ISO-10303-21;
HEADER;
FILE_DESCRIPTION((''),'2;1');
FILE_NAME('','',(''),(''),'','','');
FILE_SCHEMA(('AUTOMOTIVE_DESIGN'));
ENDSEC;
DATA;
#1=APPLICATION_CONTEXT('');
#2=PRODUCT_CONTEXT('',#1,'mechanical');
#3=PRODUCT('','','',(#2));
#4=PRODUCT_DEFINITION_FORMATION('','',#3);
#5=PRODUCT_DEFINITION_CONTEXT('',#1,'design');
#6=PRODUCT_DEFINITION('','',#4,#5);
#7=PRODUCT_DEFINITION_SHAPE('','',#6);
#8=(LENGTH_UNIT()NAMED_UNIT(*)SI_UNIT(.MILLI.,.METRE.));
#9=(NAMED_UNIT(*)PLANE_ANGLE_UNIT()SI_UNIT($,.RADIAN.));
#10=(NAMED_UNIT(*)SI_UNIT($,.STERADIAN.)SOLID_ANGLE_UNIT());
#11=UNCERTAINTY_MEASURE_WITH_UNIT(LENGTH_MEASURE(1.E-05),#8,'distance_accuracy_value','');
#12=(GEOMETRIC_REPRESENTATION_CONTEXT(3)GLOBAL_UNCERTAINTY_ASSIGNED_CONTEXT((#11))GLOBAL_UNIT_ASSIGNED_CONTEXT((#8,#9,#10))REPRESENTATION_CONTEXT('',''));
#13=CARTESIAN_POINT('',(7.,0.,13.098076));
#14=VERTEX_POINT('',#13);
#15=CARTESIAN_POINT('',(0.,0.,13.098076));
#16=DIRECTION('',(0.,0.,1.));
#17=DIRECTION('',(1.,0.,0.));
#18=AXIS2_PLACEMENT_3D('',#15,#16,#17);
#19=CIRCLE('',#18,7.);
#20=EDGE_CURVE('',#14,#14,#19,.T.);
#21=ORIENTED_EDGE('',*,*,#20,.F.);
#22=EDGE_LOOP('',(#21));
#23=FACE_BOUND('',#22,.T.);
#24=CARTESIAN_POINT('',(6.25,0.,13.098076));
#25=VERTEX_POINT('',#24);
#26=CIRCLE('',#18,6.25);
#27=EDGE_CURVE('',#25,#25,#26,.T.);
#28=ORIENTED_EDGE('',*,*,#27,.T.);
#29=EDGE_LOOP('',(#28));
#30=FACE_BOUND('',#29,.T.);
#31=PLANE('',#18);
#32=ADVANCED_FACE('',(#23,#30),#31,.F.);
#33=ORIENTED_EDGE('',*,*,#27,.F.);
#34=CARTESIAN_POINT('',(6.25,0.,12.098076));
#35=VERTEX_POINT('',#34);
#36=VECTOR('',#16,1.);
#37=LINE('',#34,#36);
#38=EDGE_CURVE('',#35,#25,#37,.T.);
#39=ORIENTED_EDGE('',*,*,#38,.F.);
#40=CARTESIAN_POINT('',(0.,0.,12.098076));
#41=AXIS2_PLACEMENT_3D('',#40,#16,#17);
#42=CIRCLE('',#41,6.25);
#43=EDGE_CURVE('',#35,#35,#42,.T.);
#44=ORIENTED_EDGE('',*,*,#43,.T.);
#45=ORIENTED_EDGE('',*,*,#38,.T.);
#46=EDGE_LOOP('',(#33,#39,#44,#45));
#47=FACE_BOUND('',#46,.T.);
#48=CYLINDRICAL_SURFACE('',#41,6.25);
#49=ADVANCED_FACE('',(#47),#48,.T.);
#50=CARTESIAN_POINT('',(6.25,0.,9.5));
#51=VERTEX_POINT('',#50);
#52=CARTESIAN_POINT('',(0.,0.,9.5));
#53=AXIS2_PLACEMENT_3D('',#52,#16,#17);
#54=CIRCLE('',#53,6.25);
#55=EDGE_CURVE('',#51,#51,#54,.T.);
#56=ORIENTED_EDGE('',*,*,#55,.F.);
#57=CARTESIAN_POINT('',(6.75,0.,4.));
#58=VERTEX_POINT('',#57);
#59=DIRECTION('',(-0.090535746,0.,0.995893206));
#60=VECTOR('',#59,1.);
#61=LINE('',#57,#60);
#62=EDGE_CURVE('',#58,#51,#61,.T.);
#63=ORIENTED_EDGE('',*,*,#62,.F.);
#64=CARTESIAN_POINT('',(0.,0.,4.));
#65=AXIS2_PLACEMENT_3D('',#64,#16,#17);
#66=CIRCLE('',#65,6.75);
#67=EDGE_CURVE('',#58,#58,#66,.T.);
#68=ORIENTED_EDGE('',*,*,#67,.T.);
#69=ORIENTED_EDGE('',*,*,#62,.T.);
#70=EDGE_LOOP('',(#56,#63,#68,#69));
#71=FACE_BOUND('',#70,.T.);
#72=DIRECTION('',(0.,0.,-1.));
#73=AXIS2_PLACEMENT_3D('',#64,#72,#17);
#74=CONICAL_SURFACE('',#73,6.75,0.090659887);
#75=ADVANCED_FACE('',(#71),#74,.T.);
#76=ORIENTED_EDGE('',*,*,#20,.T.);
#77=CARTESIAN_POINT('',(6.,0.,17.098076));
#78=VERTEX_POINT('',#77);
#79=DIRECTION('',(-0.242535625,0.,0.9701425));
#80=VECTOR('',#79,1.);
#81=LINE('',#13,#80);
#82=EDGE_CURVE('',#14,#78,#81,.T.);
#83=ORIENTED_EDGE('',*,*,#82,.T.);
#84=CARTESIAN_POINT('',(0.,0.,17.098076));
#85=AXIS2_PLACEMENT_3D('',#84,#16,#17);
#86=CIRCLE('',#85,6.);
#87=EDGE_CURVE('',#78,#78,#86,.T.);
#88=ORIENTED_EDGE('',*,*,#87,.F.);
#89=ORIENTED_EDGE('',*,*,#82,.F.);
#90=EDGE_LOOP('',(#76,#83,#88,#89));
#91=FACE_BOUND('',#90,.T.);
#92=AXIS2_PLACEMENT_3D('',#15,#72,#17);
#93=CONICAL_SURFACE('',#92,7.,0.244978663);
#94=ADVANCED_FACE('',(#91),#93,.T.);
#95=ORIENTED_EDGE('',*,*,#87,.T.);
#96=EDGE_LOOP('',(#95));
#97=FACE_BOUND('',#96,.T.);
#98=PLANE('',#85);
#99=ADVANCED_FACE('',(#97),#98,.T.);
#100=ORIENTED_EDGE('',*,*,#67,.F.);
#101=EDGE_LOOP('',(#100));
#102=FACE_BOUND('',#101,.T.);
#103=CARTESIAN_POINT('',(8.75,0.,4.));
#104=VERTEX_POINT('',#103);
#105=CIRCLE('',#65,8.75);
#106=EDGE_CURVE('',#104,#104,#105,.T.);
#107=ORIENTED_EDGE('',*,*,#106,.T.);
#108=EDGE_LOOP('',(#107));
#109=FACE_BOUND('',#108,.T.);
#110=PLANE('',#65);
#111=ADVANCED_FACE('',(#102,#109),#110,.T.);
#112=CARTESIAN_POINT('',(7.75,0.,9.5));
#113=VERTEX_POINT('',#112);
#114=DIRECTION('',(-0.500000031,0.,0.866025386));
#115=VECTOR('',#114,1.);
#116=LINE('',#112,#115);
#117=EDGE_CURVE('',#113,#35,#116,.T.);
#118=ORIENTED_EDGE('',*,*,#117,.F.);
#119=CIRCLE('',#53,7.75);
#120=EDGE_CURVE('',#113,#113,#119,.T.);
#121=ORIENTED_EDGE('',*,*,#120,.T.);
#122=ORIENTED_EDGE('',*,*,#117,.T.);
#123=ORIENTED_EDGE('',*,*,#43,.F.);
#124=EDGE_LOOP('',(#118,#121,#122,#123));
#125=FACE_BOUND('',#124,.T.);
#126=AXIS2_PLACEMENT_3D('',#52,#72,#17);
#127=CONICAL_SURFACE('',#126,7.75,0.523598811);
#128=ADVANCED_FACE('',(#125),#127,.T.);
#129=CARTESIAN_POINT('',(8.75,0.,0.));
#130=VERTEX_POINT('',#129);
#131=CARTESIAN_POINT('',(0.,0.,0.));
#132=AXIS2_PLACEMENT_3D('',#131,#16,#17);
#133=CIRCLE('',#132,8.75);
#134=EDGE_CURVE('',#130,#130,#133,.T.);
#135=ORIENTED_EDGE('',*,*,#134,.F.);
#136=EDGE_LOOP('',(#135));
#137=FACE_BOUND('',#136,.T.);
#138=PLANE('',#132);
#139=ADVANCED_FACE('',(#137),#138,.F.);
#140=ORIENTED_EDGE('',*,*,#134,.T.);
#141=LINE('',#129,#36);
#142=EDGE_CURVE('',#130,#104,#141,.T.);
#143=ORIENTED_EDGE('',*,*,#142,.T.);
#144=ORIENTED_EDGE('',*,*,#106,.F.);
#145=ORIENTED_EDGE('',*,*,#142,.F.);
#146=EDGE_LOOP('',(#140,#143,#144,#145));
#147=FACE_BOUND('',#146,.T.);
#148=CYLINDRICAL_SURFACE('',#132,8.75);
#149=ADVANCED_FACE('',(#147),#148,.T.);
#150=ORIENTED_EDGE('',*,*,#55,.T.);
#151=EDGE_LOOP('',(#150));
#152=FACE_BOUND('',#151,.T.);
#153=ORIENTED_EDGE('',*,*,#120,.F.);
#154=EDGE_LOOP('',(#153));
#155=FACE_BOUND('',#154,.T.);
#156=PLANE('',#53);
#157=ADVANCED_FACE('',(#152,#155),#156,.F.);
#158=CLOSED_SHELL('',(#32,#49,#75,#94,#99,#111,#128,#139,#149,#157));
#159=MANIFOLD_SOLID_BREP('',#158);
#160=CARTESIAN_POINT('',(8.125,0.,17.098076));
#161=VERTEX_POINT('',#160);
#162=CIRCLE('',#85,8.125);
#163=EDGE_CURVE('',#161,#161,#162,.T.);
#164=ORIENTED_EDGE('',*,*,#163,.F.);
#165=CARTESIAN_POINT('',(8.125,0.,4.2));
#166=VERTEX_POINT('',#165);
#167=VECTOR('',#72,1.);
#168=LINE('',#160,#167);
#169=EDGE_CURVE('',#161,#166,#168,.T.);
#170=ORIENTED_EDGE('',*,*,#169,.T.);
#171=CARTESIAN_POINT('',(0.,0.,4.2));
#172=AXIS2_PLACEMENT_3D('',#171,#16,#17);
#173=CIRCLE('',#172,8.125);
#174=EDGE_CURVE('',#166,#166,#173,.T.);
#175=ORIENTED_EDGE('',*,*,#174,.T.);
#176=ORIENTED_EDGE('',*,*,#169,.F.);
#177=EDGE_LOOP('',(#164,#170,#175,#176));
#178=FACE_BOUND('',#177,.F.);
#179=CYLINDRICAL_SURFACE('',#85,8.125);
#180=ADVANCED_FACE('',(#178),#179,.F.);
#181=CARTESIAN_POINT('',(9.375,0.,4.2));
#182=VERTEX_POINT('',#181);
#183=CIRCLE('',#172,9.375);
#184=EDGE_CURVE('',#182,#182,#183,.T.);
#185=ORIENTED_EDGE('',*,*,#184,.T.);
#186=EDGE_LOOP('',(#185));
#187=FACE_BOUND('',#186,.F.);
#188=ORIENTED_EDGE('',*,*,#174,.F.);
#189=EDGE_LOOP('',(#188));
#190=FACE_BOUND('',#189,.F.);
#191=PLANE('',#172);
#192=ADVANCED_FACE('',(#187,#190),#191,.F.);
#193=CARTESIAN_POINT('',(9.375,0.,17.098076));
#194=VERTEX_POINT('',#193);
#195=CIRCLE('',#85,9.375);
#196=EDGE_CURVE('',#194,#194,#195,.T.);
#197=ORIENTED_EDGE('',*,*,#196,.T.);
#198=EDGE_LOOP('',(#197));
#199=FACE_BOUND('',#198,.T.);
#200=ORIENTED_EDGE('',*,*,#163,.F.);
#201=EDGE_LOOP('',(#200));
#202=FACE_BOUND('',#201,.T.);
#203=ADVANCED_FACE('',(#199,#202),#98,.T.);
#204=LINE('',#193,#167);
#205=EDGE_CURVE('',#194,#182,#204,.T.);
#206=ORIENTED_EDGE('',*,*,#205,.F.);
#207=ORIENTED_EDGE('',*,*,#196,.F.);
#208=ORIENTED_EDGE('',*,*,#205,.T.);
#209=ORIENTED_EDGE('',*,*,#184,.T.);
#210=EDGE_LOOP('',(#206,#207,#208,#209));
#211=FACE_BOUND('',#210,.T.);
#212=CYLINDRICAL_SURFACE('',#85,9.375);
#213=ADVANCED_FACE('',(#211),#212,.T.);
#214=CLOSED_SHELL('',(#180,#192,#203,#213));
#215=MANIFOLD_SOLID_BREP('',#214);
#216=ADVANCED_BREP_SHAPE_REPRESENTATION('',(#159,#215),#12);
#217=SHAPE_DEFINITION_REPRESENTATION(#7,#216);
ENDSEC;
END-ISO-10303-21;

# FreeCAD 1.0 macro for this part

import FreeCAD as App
import Part
import Sketcher
from FreeCAD import Vector
Q = App.Units.Quantity


def add_polygon(sketch, points):
    """Adds a closed chain of lines whose ends are joined by coincident constraints."""
    first, n = sketch.GeometryCount, len(points)
    for a, b in zip(points, points[1:] + points[:1]):
        sketch.addGeometry(Part.LineSegment(App.Vector(*a, 0), App.Vector(*b, 0)), False)
    for i in range(n):
        sketch.addConstraint(Sketcher.Constraint("Coincident", first + i, 2, first + (i + 1) % n, 1))

doc = App.newDocument("Part")
body = doc.addObject("PartDesign::Body", "Body")

# Sketch on XZ plane
sketch1 = body.newObject("Sketcher::SketchObject", "Sketch")
sketch1.AttachmentSupport = (doc.getObject("XZ_Plane"), [""])
sketch1.MapMode = "FlatFace"
add_polygon(sketch1, [(8.75, 0), (8.75, 4), (6.75, 4), (6.25, 9.5), (7.75, 9.5), (6.25, 12.098076), (6.25, 13.098076), (7, 13.098076), (6, 17.098076), (0, 17.098076), (0, 0)])  # lines 0-10
sketch1.addConstraint([
    Sketcher.Constraint("Vertical", 0),
    Sketcher.Constraint("Horizontal", 1),
    Sketcher.Constraint("Horizontal", 3),
    Sketcher.Constraint("Vertical", 5),
    Sketcher.Constraint("Horizontal", 6),
    Sketcher.Constraint("Horizontal", 8),
    Sketcher.Constraint("Vertical", 9),
    Sketcher.Constraint("Horizontal", 10),
    Sketcher.Constraint("Coincident", 9, 2, -1, 1),
    Sketcher.Constraint("Vertical", 2, 2, 4, 2),
    Sketcher.Constraint("DistanceX", 1, 2, 1, 1, Q("2 mm")),
    Sketcher.Constraint("DistanceX", 8, 2, 8, 1, Q("6 mm")),
    Sketcher.Constraint("DistanceY", 0, 1, 0, 2, Q("4 mm")),
    Sketcher.Constraint("DistanceY", 5, 1, 5, 2, Q("1 mm")),
    Sketcher.Constraint("Angle", 4, Q("120.000002 deg")),
    Sketcher.Constraint("Distance", 4, Q("3 mm")),
    Sketcher.Constraint("DistanceX", -1, 1, 6, 2, Q("7 mm")),
    Sketcher.Constraint("DistanceX", 3, 2, 0, 2, Q("1 mm")),
    Sketcher.Constraint("DistanceY", 5, 2, 7, 2, Q("4 mm")),
    Sketcher.Constraint("DistanceX", 6, 1, 6, 2, Q("0.75 mm")),
    Sketcher.Constraint("DistanceY", -1, 1, 2, 2, Q("9.5 mm")),
])
revolution = body.newObject("PartDesign::Revolution", "Revolution")
revolution.Profile = sketch1
revolution.ReferenceAxis = (sketch1, ["V_Axis"])
revolution.Angle = 360
body2 = doc.addObject("PartDesign::Body", "Body001")

# Sketch on XY plane
sketch2 = body2.newObject("Sketcher::SketchObject", "Sketch001")
sketch2.AttachmentSupport = (doc.getObject("XY_Plane001"), [""])
sketch2.MapMode = "FlatFace"
sketch2.AttachmentOffset = App.Placement(Vector(0, 0, 17.098076), App.Rotation())
sketch2.addGeometry([
    Part.Circle(Vector(0, 0, 0), Vector(0, 0, 1), 9.375),
    Part.Circle(Vector(0, 0, 0), Vector(0, 0, 1), 8.125),
], False)
sketch2.addConstraint([
    Sketcher.Constraint("Coincident", 0, 3, -1, 1),
    Sketcher.Constraint("Coincident", 1, 3, -1, 1),
    Sketcher.Constraint("Diameter", 0, Q("18.75 mm")),
    Sketcher.Constraint("Diameter", 1, Q("16.25 mm")),
])
pad1 = body2.newObject("PartDesign::Pad", "Pad")
pad1.Profile = sketch2
pad1.Length = 12.898076
pad1.Reversed = True

doc.recompute()
